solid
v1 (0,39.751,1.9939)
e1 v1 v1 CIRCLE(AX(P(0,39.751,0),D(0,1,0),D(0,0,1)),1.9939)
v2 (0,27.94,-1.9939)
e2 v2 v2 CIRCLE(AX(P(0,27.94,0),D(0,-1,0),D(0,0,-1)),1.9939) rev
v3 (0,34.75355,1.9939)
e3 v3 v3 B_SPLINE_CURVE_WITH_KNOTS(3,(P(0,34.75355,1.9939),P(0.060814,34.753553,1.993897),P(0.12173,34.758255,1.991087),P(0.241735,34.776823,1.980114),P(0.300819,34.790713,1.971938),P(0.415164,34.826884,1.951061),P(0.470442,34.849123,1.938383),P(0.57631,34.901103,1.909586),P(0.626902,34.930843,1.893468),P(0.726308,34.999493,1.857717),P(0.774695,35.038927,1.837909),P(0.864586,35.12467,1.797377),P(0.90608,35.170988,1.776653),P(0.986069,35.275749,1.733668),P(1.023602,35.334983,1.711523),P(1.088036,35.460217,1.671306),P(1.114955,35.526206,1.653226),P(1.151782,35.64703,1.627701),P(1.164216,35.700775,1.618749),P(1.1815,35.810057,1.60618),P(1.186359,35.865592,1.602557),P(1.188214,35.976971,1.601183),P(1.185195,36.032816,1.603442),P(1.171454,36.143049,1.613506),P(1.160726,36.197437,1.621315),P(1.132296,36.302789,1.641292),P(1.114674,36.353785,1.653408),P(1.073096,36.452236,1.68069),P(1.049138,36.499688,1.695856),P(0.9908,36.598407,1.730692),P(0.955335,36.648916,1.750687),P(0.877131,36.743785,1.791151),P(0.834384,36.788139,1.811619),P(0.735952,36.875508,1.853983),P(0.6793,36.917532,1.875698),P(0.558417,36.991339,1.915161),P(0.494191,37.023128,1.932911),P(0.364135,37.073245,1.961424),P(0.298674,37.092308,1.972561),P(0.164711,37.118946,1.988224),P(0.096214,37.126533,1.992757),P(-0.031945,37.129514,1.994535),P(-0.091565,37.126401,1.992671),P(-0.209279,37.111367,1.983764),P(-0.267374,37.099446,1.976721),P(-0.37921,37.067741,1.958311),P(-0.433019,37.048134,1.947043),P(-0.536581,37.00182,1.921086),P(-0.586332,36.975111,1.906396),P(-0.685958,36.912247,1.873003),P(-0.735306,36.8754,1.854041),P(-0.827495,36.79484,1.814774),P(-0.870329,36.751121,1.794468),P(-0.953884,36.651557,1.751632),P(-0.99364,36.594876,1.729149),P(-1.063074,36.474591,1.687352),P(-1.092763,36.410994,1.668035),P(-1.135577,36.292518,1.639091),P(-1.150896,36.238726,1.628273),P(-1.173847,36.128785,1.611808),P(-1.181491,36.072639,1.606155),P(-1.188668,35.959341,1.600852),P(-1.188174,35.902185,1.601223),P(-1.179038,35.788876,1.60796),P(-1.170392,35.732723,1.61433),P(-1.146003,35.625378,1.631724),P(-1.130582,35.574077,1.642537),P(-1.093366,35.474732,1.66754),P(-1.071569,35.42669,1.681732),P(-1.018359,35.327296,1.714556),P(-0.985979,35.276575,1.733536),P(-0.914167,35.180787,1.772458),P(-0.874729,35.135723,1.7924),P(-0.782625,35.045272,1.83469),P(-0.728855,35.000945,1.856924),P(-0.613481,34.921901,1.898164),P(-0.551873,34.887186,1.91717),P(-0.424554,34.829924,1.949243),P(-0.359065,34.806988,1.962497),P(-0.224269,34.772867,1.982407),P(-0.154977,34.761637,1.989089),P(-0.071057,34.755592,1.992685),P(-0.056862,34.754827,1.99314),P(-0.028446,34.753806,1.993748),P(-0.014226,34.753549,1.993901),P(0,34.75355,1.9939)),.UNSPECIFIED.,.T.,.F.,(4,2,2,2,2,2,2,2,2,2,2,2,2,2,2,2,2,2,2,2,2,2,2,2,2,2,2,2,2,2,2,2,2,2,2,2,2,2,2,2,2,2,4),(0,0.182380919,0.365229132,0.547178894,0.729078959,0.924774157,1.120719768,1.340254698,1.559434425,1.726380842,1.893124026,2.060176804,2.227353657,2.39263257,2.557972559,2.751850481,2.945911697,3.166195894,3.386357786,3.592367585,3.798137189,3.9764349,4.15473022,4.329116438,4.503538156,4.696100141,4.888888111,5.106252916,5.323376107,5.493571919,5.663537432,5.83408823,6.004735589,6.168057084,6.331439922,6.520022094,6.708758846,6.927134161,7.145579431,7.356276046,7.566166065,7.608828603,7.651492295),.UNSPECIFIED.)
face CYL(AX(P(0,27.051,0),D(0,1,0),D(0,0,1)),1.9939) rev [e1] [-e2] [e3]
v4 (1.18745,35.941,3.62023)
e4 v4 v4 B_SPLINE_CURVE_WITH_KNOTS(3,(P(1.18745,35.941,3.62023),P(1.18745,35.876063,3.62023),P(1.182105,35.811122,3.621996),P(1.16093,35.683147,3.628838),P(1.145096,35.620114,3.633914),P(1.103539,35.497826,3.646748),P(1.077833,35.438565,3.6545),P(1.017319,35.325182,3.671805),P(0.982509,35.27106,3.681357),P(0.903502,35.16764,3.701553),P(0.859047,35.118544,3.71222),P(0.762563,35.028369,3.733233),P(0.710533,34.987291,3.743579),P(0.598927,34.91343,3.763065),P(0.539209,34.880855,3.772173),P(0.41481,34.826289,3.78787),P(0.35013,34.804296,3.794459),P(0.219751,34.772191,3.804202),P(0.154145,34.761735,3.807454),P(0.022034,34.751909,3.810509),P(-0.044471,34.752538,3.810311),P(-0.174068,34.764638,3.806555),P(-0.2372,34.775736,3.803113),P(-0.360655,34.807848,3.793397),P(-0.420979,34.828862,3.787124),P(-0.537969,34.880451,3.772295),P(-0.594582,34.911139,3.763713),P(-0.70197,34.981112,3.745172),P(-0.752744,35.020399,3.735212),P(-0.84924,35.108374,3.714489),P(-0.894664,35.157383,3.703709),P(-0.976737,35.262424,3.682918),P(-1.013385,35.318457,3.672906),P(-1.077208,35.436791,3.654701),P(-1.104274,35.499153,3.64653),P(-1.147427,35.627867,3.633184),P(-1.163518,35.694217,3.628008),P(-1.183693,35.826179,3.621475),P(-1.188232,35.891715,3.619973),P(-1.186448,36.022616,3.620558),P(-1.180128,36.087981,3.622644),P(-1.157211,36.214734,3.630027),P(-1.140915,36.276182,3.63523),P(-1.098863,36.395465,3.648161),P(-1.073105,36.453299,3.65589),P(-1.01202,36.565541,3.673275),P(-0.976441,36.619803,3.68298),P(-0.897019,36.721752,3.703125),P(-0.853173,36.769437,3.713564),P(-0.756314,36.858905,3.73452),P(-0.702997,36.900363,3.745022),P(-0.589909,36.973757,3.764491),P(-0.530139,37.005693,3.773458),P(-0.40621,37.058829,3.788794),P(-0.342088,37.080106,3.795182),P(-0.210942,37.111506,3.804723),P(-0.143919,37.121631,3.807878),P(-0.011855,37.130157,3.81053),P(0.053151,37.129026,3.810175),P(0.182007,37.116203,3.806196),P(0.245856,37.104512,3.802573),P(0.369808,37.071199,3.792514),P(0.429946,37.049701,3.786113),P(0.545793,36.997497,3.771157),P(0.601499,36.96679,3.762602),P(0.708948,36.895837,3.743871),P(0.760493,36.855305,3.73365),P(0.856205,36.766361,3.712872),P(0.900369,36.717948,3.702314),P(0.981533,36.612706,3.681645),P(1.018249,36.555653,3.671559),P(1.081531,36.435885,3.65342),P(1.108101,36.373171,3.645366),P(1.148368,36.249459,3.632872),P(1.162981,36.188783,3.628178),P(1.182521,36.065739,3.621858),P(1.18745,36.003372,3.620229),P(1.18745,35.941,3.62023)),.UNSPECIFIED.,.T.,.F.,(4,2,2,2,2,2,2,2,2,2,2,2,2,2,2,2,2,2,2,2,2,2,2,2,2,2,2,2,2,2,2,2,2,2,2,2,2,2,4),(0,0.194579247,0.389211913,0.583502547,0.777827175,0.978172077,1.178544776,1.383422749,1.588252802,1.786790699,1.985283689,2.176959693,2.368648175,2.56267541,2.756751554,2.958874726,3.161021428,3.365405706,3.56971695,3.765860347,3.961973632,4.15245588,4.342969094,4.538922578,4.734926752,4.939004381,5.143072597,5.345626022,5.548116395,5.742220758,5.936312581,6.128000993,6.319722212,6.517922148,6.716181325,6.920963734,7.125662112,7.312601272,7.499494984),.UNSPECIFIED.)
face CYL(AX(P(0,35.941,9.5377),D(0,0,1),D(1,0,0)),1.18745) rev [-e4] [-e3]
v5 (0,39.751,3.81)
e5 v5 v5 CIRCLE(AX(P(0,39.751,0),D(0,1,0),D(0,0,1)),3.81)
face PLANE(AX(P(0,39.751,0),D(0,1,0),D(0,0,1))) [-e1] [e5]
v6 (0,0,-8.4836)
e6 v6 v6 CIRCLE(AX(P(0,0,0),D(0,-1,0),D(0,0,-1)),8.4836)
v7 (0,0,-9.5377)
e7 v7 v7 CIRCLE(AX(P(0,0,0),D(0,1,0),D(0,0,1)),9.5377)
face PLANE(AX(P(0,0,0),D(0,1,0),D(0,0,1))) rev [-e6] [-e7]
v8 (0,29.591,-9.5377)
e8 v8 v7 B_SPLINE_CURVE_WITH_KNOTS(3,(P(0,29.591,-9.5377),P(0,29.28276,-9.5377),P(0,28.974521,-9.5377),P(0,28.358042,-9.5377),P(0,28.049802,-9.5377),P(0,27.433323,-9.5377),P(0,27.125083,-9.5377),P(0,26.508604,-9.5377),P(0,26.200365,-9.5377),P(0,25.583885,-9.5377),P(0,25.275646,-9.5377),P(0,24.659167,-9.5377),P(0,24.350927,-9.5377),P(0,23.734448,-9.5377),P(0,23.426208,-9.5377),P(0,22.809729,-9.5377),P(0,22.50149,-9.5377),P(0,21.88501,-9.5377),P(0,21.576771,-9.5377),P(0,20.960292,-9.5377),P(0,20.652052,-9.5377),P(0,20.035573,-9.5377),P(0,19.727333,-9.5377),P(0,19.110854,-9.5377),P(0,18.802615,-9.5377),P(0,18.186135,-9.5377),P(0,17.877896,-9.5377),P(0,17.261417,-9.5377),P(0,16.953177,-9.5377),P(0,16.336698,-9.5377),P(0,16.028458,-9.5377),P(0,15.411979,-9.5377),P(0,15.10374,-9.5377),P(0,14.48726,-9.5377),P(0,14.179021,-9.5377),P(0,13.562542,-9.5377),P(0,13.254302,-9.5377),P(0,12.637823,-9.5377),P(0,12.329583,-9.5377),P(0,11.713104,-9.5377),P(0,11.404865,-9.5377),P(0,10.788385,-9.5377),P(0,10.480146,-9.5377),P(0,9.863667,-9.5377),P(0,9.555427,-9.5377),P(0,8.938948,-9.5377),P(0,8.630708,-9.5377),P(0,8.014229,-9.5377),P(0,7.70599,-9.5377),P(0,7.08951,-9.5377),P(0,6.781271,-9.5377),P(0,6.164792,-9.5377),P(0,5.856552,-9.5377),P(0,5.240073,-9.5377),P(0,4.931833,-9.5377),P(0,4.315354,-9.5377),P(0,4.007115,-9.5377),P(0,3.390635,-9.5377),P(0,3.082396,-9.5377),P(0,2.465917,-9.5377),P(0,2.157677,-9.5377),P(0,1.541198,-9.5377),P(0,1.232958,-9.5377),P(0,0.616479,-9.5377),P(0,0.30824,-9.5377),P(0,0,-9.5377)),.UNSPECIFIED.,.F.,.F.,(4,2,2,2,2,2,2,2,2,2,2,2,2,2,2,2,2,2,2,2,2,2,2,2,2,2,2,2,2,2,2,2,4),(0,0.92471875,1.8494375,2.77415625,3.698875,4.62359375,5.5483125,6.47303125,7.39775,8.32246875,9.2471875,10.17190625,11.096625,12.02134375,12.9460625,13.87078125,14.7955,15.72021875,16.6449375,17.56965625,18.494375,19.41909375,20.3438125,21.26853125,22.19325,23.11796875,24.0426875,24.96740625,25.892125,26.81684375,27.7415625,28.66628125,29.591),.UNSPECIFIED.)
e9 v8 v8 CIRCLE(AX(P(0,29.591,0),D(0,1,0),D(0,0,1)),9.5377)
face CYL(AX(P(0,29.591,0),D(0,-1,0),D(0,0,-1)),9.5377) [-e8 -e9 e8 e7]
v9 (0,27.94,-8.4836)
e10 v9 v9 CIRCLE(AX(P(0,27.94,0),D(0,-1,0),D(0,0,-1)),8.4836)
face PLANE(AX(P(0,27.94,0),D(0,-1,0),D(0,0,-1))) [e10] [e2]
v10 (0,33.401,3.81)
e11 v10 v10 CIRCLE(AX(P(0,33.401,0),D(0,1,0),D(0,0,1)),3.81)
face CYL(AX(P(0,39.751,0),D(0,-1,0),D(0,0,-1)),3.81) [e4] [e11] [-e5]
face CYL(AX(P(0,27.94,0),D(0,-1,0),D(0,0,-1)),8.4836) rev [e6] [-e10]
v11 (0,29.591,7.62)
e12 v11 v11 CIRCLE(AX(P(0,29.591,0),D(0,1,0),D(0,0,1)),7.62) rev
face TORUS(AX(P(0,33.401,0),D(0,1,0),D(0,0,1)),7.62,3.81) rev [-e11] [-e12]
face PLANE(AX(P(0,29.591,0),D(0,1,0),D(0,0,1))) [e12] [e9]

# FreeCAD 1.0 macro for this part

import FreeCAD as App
import Part
import Sketcher
Q = App.Units.Quantity


def edges_at(feature, points):
    """Names of the edges that pass closest to the given points."""
    edges = feature.Shape.Edges
    near = lambda p: min(range(len(edges)), key=lambda i: edges[i].distToShape(Part.Vertex(*p))[0])
    return sorted({f"Edge{near(p) + 1}" for p in points})

doc = App.newDocument("Part")
body = doc.addObject("PartDesign::Body", "Body")

# Sketch on XZ plane
sketch1 = body.newObject("Sketcher::SketchObject", "Sketch")
sketch1.AttachmentSupport = (doc.getObject("XZ_Plane"), [""])
sketch1.MapMode = "FlatFace"
sketch1.addGeometry(Part.Circle(App.Vector(0, 0, 0), App.Vector(0, 0, 1), 10), False)
sketch1.addConstraint(Sketcher.Constraint("Coincident", 0, 3, -1, 1))
sketch1.addConstraint(Sketcher.Constraint("Diameter", 0, Q("0.751 in")))
pad1 = body.newObject("PartDesign::Pad", "Pad")
pad1.Profile = sketch1
pad1.Length = Q("1.165 in")
pad1.Reversed = True

# Sketch on XZ plane
sketch2 = body.newObject("Sketcher::SketchObject", "Sketch001")
sketch2.AttachmentSupport = (doc.getObject("XZ_Plane"), [""])
sketch2.MapMode = "FlatFace"
sketch2.AttachmentOffset = App.Placement(App.Vector(0, 0, -1.165 * 25.4), App.Rotation())
sketch2.addGeometry(Part.Circle(App.Vector(0, 0, 0), App.Vector(0, 0, 1), 3.8), False)
sketch2.addConstraint(Sketcher.Constraint("Coincident", 0, 3, -1, 1))
sketch2.addConstraint(Sketcher.Constraint("Diameter", 0, Q("0.3 in")))
pad2 = body.newObject("PartDesign::Pad", "Pad001")
pad2.Profile = sketch2
pad2.Length = Q("0.4 in")
pad2.Reversed = True

# Sketch on XZ plane
sketch3 = body.newObject("Sketcher::SketchObject", "Sketch002")
sketch3.AttachmentSupport = (doc.getObject("XZ_Plane"), [""])
sketch3.MapMode = "FlatFace"
sketch3.AttachmentOffset = App.Placement(App.Vector(0, 0, -1.565 * 25.4), App.Rotation())
sketch3.addGeometry(Part.Circle(App.Vector(0, 0, 0), App.Vector(0, 0, 1), 2), False)
sketch3.addConstraint(Sketcher.Constraint("Coincident", 0, 3, -1, 1))
sketch3.addConstraint(Sketcher.Constraint("Diameter", 0, Q("0.157 in")))
pocket1 = body.newObject("PartDesign::Pocket", "Pocket")
pocket1.Profile = sketch3
pocket1.Length = Q("0.5 in")
pocket1.Reversed = True

# Sketch on XZ plane
sketch4 = body.newObject("Sketcher::SketchObject", "Sketch003")
sketch4.AttachmentSupport = (doc.getObject("XZ_Plane"), [""])
sketch4.MapMode = "FlatFace"
sketch4.addGeometry(Part.Circle(App.Vector(0, 0, 0), App.Vector(0, 0, 1), 8), False)
sketch4.addConstraint(Sketcher.Constraint("Coincident", 0, 3, -1, 1))
sketch4.addConstraint(Sketcher.Constraint("Diameter", 0, Q("0.668 in")))
pocket2 = body.newObject("PartDesign::Pocket", "Pocket001")
pocket2.Profile = sketch4
pocket2.Length = Q("1.1 in")
doc.recompute()

fillet = body.newObject("PartDesign::Fillet", "Fillet")
fillet.Base = (pocket2, edges_at(pocket2, [(0, 29.591, -3.81)]))
fillet.Radius = Q("0.15 in")

# Sketch on XY plane
sketch5 = body.newObject("Sketcher::SketchObject", "Sketch004")
sketch5.AttachmentSupport = (doc.getObject("XY_Plane"), [""])
sketch5.MapMode = "FlatFace"
sketch5.AttachmentOffset = App.Placement(App.Vector(0, 0, 0.3755 * 25.4), App.Rotation())
sketch5.addGeometry(Part.Circle(App.Vector(0, 35.9, 0), App.Vector(0, 0, 1), 1.2), False)
sketch5.addConstraint(Sketcher.Constraint("PointOnObject", 0, 3, -2))
sketch5.addConstraint(Sketcher.Constraint("Diameter", 0, Q("0.0935 in")))
sketch5.addConstraint(Sketcher.Constraint("DistanceY", -1, 1, 0, 3, Q("1.415 in")))
doc.recompute()
hole = body.newObject("PartDesign::Hole", "Hole")
hole.Profile = sketch5
hole.ThreadType = "None"
hole.Diameter = Q("0.0935 in")
hole.DepthType = "Dimension"
hole.Depth = Q("0.35 in")
hole.DrillPoint = "Angled"
hole.DrillPointAngle = 118

doc.recompute()
